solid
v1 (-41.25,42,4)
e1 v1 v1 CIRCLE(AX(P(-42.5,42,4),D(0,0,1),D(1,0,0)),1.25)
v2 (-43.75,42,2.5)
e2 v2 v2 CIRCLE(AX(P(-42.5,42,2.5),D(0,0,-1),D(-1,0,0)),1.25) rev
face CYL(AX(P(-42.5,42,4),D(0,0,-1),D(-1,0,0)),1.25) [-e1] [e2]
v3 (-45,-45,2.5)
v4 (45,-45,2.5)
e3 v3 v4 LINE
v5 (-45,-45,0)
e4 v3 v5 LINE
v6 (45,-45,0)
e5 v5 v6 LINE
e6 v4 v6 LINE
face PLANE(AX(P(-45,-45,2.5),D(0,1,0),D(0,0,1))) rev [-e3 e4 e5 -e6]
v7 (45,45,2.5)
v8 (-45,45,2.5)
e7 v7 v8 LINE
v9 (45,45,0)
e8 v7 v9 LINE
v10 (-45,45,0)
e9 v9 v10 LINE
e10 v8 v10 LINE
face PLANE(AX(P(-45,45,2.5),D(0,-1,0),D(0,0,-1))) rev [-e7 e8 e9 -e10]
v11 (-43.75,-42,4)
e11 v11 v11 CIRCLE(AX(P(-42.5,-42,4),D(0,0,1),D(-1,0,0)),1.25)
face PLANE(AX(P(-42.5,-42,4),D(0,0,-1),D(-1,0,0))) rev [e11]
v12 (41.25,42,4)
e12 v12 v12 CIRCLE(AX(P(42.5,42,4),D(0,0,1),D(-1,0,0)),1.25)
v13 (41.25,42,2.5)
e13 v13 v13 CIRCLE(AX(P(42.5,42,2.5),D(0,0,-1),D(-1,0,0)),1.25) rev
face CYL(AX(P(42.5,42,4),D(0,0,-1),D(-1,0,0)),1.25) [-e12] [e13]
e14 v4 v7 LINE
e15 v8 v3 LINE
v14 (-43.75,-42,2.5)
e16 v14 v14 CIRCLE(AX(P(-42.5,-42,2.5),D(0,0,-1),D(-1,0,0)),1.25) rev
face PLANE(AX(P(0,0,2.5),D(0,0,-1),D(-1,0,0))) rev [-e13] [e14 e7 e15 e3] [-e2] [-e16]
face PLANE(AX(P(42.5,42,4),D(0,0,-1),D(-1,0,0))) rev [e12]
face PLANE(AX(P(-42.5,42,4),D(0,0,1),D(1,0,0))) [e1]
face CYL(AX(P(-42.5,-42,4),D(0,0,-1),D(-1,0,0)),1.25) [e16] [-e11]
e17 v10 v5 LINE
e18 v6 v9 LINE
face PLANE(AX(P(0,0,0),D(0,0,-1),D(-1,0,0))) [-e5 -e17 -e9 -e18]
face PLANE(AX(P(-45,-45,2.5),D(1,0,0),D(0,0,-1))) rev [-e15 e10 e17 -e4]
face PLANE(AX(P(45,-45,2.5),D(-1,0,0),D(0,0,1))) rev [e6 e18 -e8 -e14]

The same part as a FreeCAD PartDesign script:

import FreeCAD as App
import Part
import Sketcher
Q = App.Units.Quantity


def add_polygon(sketch, points):
    """Adds a closed chain of lines whose ends are joined by coincident constraints."""
    first, n = sketch.GeometryCount, len(points)
    for a, b in zip(points, points[1:] + points[:1]):
        sketch.addGeometry(Part.LineSegment(App.Vector(*a, 0), App.Vector(*b, 0)), False)
    for i in range(n):
        sketch.addConstraint(Sketcher.Constraint("Coincident", first + i, 2, first + (i + 1) % n, 1))

doc = App.newDocument("Part")
params = doc.addObject("Spreadsheet::Sheet", "Params")
for row, (alias, value) in enumerate([
    ("sketch1_width", "90 mm"),
    ("pad1_length", "2.5 mm"),
    ("sketch2_diameter", "2.5 mm"),
    ("pad2_length", "1.5 mm"),
], start=1):
    params.set(f"A{row}", alias)
    params.set(f"B{row}", "=" + value)
    params.setAlias(f"B{row}", alias)

body = doc.addObject("PartDesign::Body", "Body")

sketch1 = body.newObject("Sketcher::SketchObject", "Sketch")
sketch1.AttachmentSupport = (doc.getObject("XY_Plane"), [""])
sketch1.MapMode = "FlatFace"
add_polygon(sketch1, [(-45, 45), (-45, -45), (45, -45), (45, 45)])
sketch1.addConstraint([
    Sketcher.Constraint("Vertical", 0),
    Sketcher.Constraint("Horizontal", 1),
    Sketcher.Constraint("Vertical", 2),
    Sketcher.Constraint("Horizontal", 3),
    Sketcher.Constraint("Symmetric", 0, 2, 2, 2, -1, 1),
    Sketcher.Constraint("Equal", 3, 0),
    Sketcher.Constraint("DistanceX", 1, 1, 1, 2, Q("90 mm")),
])
sketch1.setExpression("Constraints[10]", "Params.sketch1_width")
pad1 = body.newObject("PartDesign::Pad", "Pad")
pad1.Profile = sketch1
pad1.setExpression("Length", "Params.pad1_length")

sketch2 = body.newObject("Sketcher::SketchObject", "Sketch001")
sketch2.AttachmentSupport = (doc.getObject("XY_Plane"), [""])
sketch2.MapMode = "FlatFace"
sketch2.AttachmentOffset = App.Placement(App.Vector(0, 0, 2.5), App.Rotation())
sketch2.addGeometry([
    Part.Circle(App.Vector(-42.5, 42, 0), App.Vector(0, 0, 1), 1.2),
    Part.Circle(App.Vector(42.5, 42, 0), App.Vector(0, 0, 1), 1.2),
    Part.Circle(App.Vector(-42.5, -42, 0), App.Vector(0, 0, 1), 1.2),
], False)
sketch2.addConstraint([
    Sketcher.Constraint("Equal", 0, 1),
    Sketcher.Constraint("Equal", 1, 2),
    Sketcher.Constraint("Symmetric", 1, 3, 2, 3, -1, 1),
    Sketcher.Constraint("Symmetric", 0, 3, 1, 3, -2),
    Sketcher.Constraint("Diameter", 0, Q("2.5 mm")),
    Sketcher.Constraint("DistanceY", -1, 1, 0, 3, Q("42 mm")),
    Sketcher.Constraint("DistanceX", 0, 3, 1, 3, Q("85 mm")),
])
sketch2.setExpression("Constraints[4]", "Params.sketch2_diameter")
pad2 = body.newObject("PartDesign::Pad", "Pad001")
pad2.Profile = sketch2
pad2.setExpression("Length", "Params.pad2_length")

doc.recompute()
